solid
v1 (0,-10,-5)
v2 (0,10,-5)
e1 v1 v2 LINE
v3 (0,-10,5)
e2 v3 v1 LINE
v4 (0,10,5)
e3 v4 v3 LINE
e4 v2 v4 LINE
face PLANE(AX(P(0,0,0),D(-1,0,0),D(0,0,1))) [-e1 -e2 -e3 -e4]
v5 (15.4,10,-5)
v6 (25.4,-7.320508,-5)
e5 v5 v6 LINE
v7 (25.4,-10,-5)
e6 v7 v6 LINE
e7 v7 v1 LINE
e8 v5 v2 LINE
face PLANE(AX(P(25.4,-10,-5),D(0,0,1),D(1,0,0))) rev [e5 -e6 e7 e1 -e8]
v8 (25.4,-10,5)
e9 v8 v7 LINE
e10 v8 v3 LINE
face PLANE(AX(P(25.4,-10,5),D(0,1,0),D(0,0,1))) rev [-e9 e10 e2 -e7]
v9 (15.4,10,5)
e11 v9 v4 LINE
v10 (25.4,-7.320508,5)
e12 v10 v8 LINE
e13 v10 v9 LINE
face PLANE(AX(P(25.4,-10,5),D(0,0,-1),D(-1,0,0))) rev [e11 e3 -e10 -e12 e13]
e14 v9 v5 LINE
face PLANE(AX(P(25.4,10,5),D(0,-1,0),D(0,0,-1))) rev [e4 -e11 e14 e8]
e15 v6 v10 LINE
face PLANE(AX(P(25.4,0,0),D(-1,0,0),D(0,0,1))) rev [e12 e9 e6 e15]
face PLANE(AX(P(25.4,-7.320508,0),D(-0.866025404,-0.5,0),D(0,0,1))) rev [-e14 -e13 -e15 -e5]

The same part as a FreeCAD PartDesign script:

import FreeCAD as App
import Part
import Sketcher

V = App.Vector


def edges_at(feature, points):
    """Names of the edges that pass closest to the given points."""
    edges = feature.Shape.Edges
    near = lambda p: min(range(len(edges)), key=lambda i: edges[i].distToShape(Part.Vertex(*p))[0])
    return sorted({f"Edge{near(p) + 1}" for p in points})


def add_polygon(sketch, points):
    """Adds a closed chain of lines whose ends are joined by coincident constraints."""
    first, n = sketch.GeometryCount, len(points)
    for a, b in zip(points, points[1:] + points[:1]):
        sketch.addGeometry(Part.LineSegment(App.Vector(*a, 0), App.Vector(*b, 0)), False)
    for i in range(n):
        sketch.addConstraint(Sketcher.Constraint("Coincident", first + i, 2, first + (i + 1) % n, 1))

doc = App.newDocument("Part")
params = doc.addObject("Spreadsheet::Sheet", "Params")
for row, (alias, value) in enumerate([
    ("sketch1_width", "20 mm"),
    ("sketch1_height", "10 mm"),
    ("pad1_length", "25.4 mm"),
    ("chamfer_size", "10 mm"),
    ("chamfer_size2", "17.320508 mm"),
], start=1):
    params.set(f"A{row}", alias)
    params.set(f"B{row}", "=" + value)
    params.setAlias(f"B{row}", alias)

body = doc.addObject("PartDesign::Body", "Body")

# Sketch on YZ plane
sketch1 = body.newObject("Sketcher::SketchObject", "Sketch")
sketch1.AttachmentSupport = (doc.getObject("YZ_Plane"), [""])
sketch1.MapMode = "FlatFace"
add_polygon(sketch1, [(10, 5), (-10, 5), (-10, -5), (10, -5)])  # lines 0-3
sketch1.addConstraint([
    Sketcher.Constraint("Horizontal", 0),
    Sketcher.Constraint("Vertical", 1),
    Sketcher.Constraint("Horizontal", 2),
    Sketcher.Constraint("Vertical", 3),
    Sketcher.Constraint("Symmetric", 0, 2, 2, 2, -1, 1),
    Sketcher.Constraint("DistanceX", 0, 2, 0, 1, 20.0),
    Sketcher.Constraint("DistanceY", 1, 2, 1, 1, 10.0),
])
sketch1.setExpression("Constraints[9]", "Params.sketch1_width")
sketch1.setExpression("Constraints[10]", "Params.sketch1_height")
pad1 = body.newObject("PartDesign::Pad", "Pad")
pad1.Profile = sketch1
pad1.setExpression("Length", "Params.pad1_length")
doc.recompute()

chamfer = body.newObject("PartDesign::Chamfer", "Chamfer")
chamfer.Base = (pad1, edges_at(pad1, [(25.4, 10, 0)]))
chamfer.ChamferType = "Two distances"
chamfer.setExpression("Size", "Params.chamfer_size")
chamfer.setExpression("Size2", "Params.chamfer_size2")

doc.recompute()
